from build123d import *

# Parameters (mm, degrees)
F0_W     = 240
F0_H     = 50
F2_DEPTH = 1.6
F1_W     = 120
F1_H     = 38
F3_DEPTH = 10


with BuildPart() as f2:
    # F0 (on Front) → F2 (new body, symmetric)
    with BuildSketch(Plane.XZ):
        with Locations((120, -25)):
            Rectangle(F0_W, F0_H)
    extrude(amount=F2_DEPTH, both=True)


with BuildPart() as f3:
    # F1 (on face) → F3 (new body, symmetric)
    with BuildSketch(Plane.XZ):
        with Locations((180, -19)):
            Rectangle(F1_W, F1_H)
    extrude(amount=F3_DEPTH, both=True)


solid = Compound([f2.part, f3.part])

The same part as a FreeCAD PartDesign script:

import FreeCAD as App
import Part
import Sketcher
from FreeCAD import Vector
Q = App.Units.Quantity


def add_polygon(sketch, points):
    """Adds a closed chain of lines whose ends are joined by coincident constraints."""
    first, n = sketch.GeometryCount, len(points)
    for a, b in zip(points, points[1:] + points[:1]):
        sketch.addGeometry(Part.LineSegment(App.Vector(*a, 0), App.Vector(*b, 0)), False)
    for i in range(n):
        sketch.addConstraint(Sketcher.Constraint("Coincident", first + i, 2, first + (i + 1) % n, 1))

doc = App.newDocument("Part")
body = doc.addObject("PartDesign::Body", "Body")

sketch1 = body.newObject("Sketcher::SketchObject", "Sketch")
sketch1.AttachmentSupport = (doc.getObject("XZ_Plane"), [""])
sketch1.MapMode = "FlatFace"
add_polygon(sketch1, [(0, 0), (0, -50), (240, -50), (240, 0)])
sketch1.addConstraint([
    Sketcher.Constraint("Vertical", 0),
    Sketcher.Constraint("Horizontal", 1),
    Sketcher.Constraint("Vertical", 2),
    Sketcher.Constraint("Horizontal", 3),
    Sketcher.Constraint("Coincident", 3, 2, -1, 1),
    Sketcher.Constraint("DistanceX", 1, 1, 1, 2, Q("240 mm")),
    Sketcher.Constraint("DistanceY", 0, 2, 0, 1, Q("50 mm")),
])
pad1 = body.newObject("PartDesign::Pad", "Pad")
pad1.Profile = sketch1
pad1.Length = 3.2
pad1.Midplane = True
body2 = doc.addObject("PartDesign::Body", "Body001")

sketch2 = body2.newObject("Sketcher::SketchObject", "Sketch001")
sketch2.AttachmentSupport = (doc.getObject("XZ_Plane001"), [""])
sketch2.MapMode = "FlatFace"
add_polygon(sketch2, [(120, 0), (120, -38), (240, -38), (240, 0)])
sketch2.addConstraint([
    Sketcher.Constraint("Vertical", 0),
    Sketcher.Constraint("Horizontal", 1),
    Sketcher.Constraint("Vertical", 2),
    Sketcher.Constraint("Horizontal", 3),
    Sketcher.Constraint("PointOnObject", 2, 2, -1),
    Sketcher.Constraint("DistanceX", 1, 1, 1, 2, Q("120 mm")),
    Sketcher.Constraint("DistanceY", 0, 2, 0, 1, Q("38 mm")),
    Sketcher.Constraint("DistanceX", -1, 1, 0, 2, Q("120 mm")),
])
pad2 = body2.newObject("PartDesign::Pad", "Pad001")
pad2.Profile = sketch2
pad2.Length = 20
pad2.Midplane = True

doc.recompute()
